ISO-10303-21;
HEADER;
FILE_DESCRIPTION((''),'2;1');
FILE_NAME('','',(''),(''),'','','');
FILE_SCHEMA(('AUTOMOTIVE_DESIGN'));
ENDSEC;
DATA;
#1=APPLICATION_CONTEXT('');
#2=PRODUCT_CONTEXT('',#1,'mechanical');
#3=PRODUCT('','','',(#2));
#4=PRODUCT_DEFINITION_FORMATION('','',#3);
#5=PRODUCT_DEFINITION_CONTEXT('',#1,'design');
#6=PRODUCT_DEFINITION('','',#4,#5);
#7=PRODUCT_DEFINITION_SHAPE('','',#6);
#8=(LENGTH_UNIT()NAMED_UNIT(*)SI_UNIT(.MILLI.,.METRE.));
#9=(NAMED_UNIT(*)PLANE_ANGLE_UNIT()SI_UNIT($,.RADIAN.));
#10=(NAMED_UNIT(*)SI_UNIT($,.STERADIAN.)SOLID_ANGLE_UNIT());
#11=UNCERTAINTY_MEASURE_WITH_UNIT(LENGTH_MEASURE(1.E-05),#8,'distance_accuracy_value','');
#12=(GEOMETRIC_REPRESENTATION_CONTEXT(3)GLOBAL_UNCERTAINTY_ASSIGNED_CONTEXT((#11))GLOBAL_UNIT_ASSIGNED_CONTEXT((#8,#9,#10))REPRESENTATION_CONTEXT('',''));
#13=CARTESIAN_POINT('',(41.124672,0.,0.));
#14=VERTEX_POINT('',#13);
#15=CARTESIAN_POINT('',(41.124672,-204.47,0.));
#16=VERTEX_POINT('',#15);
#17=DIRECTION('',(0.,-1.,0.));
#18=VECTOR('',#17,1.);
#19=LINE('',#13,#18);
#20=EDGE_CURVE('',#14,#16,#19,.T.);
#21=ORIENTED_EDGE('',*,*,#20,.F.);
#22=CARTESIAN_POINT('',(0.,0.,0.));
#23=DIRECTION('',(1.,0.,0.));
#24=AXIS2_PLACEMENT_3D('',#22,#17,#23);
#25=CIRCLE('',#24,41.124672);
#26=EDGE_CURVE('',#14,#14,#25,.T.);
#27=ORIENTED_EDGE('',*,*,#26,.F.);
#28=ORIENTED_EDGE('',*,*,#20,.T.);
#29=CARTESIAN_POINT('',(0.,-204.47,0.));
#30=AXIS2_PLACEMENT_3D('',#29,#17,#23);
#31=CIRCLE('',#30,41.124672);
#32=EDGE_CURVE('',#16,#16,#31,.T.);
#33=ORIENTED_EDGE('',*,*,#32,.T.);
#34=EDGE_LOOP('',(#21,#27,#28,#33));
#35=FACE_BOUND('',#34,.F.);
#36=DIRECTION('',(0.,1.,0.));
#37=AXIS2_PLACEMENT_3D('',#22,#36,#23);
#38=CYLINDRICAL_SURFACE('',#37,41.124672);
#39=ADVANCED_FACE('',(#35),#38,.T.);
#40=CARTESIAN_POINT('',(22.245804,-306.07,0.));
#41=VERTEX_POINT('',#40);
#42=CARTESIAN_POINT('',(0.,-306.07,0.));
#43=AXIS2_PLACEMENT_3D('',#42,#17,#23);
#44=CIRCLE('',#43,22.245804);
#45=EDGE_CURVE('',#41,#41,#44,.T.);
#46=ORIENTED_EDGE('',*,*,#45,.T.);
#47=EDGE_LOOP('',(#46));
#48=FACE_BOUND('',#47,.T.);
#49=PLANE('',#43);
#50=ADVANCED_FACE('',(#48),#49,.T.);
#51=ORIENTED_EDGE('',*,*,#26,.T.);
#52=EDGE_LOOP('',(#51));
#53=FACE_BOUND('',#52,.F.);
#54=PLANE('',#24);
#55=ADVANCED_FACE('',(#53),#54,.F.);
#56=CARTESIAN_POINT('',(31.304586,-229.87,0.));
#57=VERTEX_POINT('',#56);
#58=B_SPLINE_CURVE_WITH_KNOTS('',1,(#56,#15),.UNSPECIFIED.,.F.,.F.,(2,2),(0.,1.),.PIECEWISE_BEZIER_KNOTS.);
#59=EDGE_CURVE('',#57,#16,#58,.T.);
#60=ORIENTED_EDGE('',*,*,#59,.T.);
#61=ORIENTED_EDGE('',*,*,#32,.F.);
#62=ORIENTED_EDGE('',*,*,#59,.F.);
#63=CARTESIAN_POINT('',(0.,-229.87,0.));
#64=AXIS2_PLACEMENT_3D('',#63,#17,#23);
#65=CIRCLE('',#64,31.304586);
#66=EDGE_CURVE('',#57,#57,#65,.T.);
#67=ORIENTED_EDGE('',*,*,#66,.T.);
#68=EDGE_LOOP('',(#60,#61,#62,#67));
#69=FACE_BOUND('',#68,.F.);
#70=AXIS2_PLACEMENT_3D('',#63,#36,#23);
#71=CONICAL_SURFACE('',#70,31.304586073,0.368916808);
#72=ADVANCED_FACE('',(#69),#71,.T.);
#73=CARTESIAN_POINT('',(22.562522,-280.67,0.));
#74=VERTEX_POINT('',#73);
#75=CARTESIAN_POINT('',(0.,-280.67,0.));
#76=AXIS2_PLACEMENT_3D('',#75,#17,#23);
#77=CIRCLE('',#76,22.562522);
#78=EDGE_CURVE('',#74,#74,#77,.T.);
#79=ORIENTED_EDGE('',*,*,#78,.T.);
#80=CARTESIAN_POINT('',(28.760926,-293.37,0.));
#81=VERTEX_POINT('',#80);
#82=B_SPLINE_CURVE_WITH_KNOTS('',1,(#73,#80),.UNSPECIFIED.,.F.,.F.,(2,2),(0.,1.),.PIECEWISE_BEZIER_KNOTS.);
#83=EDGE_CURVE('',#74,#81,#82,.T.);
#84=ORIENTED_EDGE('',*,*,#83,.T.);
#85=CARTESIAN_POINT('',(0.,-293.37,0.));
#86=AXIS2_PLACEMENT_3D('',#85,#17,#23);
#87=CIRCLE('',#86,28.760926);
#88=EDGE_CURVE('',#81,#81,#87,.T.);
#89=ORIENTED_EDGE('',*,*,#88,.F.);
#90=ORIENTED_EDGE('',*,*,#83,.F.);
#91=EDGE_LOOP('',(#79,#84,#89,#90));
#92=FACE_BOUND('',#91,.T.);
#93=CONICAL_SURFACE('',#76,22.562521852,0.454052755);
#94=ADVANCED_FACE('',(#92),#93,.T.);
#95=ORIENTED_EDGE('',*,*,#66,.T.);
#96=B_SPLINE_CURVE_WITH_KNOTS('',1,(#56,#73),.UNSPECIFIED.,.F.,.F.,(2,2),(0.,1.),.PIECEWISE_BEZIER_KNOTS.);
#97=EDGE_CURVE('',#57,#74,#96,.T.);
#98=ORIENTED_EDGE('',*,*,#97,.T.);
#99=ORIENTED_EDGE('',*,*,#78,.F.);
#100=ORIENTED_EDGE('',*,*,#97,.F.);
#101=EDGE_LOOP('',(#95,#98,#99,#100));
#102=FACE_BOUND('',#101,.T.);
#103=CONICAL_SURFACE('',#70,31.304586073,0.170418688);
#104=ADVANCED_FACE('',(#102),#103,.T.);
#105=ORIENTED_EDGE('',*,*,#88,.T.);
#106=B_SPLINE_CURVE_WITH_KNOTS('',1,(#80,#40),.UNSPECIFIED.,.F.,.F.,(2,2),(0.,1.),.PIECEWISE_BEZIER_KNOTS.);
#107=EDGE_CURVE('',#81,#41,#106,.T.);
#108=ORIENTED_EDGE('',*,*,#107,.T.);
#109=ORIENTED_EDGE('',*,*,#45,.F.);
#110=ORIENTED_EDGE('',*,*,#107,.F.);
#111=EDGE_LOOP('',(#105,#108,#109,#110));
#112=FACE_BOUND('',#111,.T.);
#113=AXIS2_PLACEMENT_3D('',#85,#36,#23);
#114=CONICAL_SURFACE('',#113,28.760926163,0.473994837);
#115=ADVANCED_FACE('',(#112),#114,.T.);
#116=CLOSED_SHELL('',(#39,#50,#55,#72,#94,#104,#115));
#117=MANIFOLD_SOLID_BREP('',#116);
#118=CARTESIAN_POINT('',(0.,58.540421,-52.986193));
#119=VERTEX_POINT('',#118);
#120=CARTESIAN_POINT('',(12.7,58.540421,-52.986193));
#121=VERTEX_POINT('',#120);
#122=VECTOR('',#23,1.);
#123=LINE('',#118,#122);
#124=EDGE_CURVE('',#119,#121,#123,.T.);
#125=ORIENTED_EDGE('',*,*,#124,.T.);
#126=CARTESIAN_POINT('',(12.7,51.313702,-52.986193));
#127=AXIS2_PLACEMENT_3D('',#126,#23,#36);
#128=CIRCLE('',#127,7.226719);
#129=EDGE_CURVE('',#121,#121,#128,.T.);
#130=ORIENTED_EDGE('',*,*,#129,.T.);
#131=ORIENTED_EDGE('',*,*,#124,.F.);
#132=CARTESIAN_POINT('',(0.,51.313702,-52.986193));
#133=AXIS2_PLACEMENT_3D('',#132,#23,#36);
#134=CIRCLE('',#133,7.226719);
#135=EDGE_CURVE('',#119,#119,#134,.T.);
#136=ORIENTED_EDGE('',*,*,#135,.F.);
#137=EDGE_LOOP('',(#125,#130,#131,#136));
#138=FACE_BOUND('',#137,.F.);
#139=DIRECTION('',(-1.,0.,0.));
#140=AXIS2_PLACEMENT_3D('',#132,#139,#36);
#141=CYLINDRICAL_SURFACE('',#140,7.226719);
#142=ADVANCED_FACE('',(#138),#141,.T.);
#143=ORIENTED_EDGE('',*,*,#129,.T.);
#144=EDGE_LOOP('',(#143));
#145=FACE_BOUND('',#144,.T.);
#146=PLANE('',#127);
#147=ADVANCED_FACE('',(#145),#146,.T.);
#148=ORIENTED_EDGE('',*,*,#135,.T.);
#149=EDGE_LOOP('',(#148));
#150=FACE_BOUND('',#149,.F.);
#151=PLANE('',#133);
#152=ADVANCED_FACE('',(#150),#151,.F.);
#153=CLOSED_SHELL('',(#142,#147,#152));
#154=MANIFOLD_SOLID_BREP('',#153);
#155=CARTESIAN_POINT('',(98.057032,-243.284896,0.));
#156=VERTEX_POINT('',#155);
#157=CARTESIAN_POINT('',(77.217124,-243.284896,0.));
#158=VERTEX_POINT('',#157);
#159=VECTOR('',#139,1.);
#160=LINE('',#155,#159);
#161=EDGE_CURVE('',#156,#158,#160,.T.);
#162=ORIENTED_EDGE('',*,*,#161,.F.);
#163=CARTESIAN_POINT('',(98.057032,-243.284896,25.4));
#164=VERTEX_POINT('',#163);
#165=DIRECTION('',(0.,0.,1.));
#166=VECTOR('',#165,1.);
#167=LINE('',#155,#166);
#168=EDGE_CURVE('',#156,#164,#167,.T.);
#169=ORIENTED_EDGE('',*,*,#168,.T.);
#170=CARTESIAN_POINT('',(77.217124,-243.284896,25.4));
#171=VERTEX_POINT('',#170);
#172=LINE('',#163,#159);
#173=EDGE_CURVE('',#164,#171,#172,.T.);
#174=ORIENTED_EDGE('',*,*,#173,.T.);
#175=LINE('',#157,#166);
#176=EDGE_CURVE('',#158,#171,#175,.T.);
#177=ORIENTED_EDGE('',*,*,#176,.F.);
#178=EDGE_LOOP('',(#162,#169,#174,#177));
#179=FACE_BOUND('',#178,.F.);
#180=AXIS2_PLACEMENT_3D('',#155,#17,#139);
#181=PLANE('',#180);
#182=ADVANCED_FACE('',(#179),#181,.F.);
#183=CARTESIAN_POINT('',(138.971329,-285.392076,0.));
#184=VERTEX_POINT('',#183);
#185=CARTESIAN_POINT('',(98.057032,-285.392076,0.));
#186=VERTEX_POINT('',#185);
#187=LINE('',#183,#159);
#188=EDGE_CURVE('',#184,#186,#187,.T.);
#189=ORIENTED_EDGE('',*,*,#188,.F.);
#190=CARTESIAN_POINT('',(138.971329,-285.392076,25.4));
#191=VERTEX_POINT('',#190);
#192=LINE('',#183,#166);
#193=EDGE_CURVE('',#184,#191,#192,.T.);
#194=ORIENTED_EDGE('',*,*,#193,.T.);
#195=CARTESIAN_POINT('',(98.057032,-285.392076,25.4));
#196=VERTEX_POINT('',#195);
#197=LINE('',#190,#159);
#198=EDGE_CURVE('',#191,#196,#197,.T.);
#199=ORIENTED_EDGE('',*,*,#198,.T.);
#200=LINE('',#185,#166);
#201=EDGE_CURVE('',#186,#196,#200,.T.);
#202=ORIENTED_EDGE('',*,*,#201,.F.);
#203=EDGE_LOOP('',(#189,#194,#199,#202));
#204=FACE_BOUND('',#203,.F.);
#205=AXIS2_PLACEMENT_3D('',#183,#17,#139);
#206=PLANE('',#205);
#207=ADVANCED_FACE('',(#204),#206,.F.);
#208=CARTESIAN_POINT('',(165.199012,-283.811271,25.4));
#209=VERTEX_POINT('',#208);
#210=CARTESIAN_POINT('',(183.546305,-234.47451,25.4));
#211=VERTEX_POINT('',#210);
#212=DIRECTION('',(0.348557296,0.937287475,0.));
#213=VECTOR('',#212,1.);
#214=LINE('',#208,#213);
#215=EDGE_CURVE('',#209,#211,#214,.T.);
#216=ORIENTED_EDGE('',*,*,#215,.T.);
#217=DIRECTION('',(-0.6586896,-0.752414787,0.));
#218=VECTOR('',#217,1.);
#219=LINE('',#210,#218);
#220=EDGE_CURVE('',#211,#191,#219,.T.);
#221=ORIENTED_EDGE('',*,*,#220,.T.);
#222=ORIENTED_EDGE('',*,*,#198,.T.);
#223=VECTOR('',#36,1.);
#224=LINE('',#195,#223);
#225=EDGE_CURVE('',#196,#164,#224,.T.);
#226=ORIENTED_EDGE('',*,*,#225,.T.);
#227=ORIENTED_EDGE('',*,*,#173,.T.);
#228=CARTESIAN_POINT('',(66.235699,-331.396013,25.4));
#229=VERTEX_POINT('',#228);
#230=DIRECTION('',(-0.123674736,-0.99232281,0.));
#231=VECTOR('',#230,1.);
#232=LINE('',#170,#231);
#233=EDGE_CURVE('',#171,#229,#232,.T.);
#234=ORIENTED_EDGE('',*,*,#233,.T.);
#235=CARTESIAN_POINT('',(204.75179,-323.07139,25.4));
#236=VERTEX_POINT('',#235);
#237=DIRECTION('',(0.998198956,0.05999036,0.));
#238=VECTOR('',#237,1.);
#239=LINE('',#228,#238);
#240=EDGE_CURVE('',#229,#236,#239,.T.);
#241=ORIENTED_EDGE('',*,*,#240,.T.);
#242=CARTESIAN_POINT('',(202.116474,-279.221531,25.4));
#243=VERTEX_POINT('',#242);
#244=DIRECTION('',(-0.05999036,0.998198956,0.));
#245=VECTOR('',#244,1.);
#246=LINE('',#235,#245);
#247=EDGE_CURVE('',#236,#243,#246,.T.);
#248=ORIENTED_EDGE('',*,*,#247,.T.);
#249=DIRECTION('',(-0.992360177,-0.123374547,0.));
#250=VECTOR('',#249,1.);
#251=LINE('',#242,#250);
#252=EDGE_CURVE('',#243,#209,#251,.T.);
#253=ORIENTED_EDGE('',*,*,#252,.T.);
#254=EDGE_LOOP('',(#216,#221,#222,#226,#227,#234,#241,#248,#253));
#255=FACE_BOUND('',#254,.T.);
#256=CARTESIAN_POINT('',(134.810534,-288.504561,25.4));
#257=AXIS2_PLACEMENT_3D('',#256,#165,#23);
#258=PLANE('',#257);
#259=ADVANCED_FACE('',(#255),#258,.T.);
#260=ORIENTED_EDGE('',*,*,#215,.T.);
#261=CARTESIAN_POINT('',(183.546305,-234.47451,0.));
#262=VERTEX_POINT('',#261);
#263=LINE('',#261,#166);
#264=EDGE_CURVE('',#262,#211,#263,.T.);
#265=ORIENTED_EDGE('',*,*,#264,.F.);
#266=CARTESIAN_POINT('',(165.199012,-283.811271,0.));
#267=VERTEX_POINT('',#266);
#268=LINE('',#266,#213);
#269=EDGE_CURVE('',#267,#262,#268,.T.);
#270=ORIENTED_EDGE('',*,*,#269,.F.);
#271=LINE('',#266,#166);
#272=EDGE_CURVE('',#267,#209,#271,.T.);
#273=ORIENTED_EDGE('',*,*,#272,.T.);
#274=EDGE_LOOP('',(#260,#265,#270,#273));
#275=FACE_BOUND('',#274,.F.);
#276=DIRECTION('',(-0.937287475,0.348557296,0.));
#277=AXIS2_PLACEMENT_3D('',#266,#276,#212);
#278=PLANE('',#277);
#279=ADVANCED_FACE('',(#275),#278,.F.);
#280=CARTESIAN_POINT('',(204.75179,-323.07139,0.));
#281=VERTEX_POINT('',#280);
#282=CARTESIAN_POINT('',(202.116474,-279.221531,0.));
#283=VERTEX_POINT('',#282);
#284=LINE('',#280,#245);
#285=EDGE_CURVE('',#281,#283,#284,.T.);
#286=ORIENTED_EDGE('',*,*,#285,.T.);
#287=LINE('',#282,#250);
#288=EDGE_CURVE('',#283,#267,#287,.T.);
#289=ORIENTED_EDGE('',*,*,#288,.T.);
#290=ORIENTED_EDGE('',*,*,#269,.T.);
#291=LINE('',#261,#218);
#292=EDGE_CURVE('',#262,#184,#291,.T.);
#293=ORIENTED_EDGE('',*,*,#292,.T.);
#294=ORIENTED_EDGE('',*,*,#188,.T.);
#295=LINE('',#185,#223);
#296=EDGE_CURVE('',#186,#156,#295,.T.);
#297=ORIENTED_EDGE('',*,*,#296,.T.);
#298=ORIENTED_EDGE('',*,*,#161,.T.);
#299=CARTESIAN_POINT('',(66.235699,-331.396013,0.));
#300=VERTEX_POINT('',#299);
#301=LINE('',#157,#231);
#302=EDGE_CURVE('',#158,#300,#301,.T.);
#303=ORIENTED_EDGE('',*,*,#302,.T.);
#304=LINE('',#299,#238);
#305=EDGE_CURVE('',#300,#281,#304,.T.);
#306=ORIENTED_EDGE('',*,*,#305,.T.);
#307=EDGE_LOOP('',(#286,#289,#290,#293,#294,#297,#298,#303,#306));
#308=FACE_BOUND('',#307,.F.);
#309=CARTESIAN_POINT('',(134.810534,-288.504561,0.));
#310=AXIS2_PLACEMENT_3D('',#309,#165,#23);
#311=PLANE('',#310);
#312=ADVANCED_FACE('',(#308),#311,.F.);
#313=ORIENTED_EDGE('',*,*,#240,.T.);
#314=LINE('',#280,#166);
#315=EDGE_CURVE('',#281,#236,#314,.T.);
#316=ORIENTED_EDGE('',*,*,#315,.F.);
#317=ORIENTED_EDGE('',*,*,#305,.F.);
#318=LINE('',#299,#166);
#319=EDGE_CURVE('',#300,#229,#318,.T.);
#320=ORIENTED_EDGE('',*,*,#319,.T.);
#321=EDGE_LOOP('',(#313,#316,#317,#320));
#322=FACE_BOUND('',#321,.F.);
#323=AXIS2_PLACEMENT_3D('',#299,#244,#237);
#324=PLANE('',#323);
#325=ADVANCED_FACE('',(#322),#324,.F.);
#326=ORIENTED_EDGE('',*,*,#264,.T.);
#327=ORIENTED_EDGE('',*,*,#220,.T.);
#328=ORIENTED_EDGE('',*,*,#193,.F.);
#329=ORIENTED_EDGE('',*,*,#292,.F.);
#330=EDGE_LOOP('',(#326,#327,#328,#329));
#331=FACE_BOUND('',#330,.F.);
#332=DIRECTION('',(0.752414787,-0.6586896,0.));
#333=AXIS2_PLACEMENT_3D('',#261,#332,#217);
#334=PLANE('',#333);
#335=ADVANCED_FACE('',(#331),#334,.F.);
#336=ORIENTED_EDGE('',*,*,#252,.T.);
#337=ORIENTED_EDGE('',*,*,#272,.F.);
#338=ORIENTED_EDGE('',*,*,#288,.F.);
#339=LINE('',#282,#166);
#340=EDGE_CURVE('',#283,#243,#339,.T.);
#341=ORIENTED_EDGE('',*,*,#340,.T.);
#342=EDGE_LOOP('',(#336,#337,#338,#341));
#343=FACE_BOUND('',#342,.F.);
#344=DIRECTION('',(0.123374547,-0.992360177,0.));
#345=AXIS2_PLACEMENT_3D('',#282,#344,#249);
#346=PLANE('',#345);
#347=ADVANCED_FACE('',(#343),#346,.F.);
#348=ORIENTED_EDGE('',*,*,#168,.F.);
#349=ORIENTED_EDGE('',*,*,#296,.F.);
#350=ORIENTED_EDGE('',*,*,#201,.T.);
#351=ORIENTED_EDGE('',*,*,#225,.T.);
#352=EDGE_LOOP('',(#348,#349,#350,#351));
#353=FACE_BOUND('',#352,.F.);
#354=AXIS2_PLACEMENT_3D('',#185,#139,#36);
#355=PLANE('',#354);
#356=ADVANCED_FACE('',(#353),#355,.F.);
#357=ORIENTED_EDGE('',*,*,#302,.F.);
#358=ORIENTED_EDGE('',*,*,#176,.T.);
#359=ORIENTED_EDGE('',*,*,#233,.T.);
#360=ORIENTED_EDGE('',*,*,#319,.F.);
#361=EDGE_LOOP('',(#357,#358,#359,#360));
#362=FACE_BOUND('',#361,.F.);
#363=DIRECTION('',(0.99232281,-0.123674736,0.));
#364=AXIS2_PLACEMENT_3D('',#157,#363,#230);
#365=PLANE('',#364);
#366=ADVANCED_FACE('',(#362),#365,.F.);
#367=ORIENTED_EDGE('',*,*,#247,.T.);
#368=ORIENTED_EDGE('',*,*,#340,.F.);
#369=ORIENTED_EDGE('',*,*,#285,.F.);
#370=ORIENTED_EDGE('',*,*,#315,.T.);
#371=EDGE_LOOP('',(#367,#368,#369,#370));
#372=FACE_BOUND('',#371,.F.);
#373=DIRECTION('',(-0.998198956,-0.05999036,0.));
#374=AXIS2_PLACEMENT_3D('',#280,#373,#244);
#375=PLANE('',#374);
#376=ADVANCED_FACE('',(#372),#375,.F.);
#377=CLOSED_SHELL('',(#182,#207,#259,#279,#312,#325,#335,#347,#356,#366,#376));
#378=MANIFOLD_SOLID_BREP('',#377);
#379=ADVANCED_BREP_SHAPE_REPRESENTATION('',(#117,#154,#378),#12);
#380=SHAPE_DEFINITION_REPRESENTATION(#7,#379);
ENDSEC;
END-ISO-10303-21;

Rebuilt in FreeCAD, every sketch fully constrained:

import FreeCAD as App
import Part
import Sketcher
Q = App.Units.Quantity


def add_polygon(sketch, points):
    """Adds a closed chain of lines whose ends are joined by coincident constraints."""
    first, n = sketch.GeometryCount, len(points)
    for a, b in zip(points, points[1:] + points[:1]):
        sketch.addGeometry(Part.LineSegment(App.Vector(*a, 0), App.Vector(*b, 0)), False)
    for i in range(n):
        sketch.addConstraint(Sketcher.Constraint("Coincident", first + i, 2, first + (i + 1) % n, 1))

doc = App.newDocument("Part")
params = doc.addObject("Spreadsheet::Sheet", "Params")
for row, (alias, value) in enumerate([
    ("pad1_length", "8.05 in"),
    ("pad2_length", "1 in"),
    ("pad3_length", "0.5 in"),
], start=1):
    params.set(f"A{row}", alias)
    params.set(f"B{row}", "=" + value)
    params.setAlias(f"B{row}", alias)

body = doc.addObject("PartDesign::Body", "Body")

# Sketch on XZ plane
sketch1 = body.newObject("Sketcher::SketchObject", "Sketch")
sketch1.AttachmentSupport = (doc.getObject("XZ_Plane"), [""])
sketch1.MapMode = "FlatFace"
sketch1.addGeometry(Part.Circle(App.Vector(0, 0, 0), App.Vector(0, 0, 1), 41.124672), False)
sketch1.addConstraint([
    Sketcher.Constraint("Coincident", 0, 3, -1, 1),
    Sketcher.Constraint("Diameter", 0, 82.249343),
])
pad1 = body.newObject("PartDesign::Pad", "Pad")
pad1.Profile = sketch1
pad1.setExpression("Length", "Params.pad1_length")

# Sketch on XZ plane
sketch2 = body.newObject("Sketcher::SketchObject", "Sketch001")
sketch2.AttachmentSupport = (doc.getObject("XZ_Plane"), [""])
sketch2.MapMode = "FlatFace"
sketch2.AttachmentOffset = App.Placement(App.Vector(0, 0, 9.05 * 25.4), App.Rotation())
sketch2.addGeometry(Part.Circle(App.Vector(0, 0, 0), App.Vector(0, 0, 1), 31.304586), False)
sketch2.addConstraint([
    Sketcher.Constraint("Coincident", 0, 3, -1, 1),
    Sketcher.Constraint("Diameter", 0, 62.609172),
])

# Sketch on XZ plane
sketch3 = body.newObject("Sketcher::SketchObject", "Sketch002")
sketch3.AttachmentSupport = (doc.getObject("XZ_Plane"), [""])
sketch3.MapMode = "FlatFace"
sketch3.AttachmentOffset = App.Placement(App.Vector(0, 0, 8.05 * 25.4), App.Rotation())
sketch3.addGeometry(Part.Circle(App.Vector(0, 0, 0), App.Vector(0, 0, 1), 41.124672), False)
sketch3.addConstraint([
    Sketcher.Constraint("Coincident", 0, 3, -1, 1),
    Sketcher.Constraint("Diameter", 0, 82.249343),
])

additiveloft = body.newObject("PartDesign::AdditiveLoft", "AdditiveLoft")
additiveloft.Profile = sketch2
additiveloft.Sections = [sketch3]

# Sketch on XZ plane
sketch4 = body.newObject("Sketcher::SketchObject", "Sketch003")
sketch4.AttachmentSupport = (doc.getObject("XZ_Plane"), [""])
sketch4.MapMode = "FlatFace"
sketch4.AttachmentOffset = App.Placement(App.Vector(0, 0, 9.05 * 25.4), App.Rotation())
sketch4.addGeometry(Part.Circle(App.Vector(0, 0, 0), App.Vector(0, 0, 1), 31.304586), False)
sketch4.addConstraint([
    Sketcher.Constraint("Coincident", 0, 3, -1, 1),
    Sketcher.Constraint("Diameter", 0, 62.609172),
])

# Sketch on XZ plane
sketch5 = body.newObject("Sketcher::SketchObject", "Sketch004")
sketch5.AttachmentSupport = (doc.getObject("XZ_Plane"), [""])
sketch5.MapMode = "FlatFace"
sketch5.AttachmentOffset = App.Placement(App.Vector(0, 0, 11.05 * 25.4), App.Rotation())
sketch5.addGeometry(Part.Circle(App.Vector(0, 0, 0), App.Vector(0, 0, 1), 22.562522), False)
sketch5.addConstraint([
    Sketcher.Constraint("Coincident", 0, 3, -1, 1),
    Sketcher.Constraint("Diameter", 0, 45.125044),
])

additiveloft2 = body.newObject("PartDesign::AdditiveLoft", "AdditiveLoft001")
additiveloft2.Profile = sketch4
additiveloft2.Sections = [sketch5]

# Sketch on XZ plane
sketch6 = body.newObject("Sketcher::SketchObject", "Sketch005")
sketch6.AttachmentSupport = (doc.getObject("XZ_Plane"), [""])
sketch6.MapMode = "FlatFace"
sketch6.AttachmentOffset = App.Placement(App.Vector(0, 0, 11.05 * 25.4), App.Rotation())
sketch6.addGeometry(Part.Circle(App.Vector(0, 0, 0), App.Vector(0, 0, 1), 22.562522), False)
sketch6.addConstraint([
    Sketcher.Constraint("Coincident", 0, 3, -1, 1),
    Sketcher.Constraint("Diameter", 0, 45.125044),
])

# Sketch on XZ plane
sketch7 = body.newObject("Sketcher::SketchObject", "Sketch006")
sketch7.AttachmentSupport = (doc.getObject("XZ_Plane"), [""])
sketch7.MapMode = "FlatFace"
sketch7.AttachmentOffset = App.Placement(App.Vector(0, 0, 11.55 * 25.4), App.Rotation())
sketch7.addGeometry(Part.Circle(App.Vector(0, 0, 0), App.Vector(0, 0, 1), 28.760926), False)
sketch7.addConstraint([
    Sketcher.Constraint("Coincident", 0, 3, -1, 1),
    Sketcher.Constraint("Diameter", 0, 57.521852),
])

additiveloft3 = body.newObject("PartDesign::AdditiveLoft", "AdditiveLoft002")
additiveloft3.Profile = sketch6
additiveloft3.Sections = [sketch7]

# Sketch on XZ plane
sketch8 = body.newObject("Sketcher::SketchObject", "Sketch007")
sketch8.AttachmentSupport = (doc.getObject("XZ_Plane"), [""])
sketch8.MapMode = "FlatFace"
sketch8.AttachmentOffset = App.Placement(App.Vector(0, 0, 11.55 * 25.4), App.Rotation())
sketch8.addGeometry(Part.Circle(App.Vector(0, 0, 0), App.Vector(0, 0, 1), 28.760926), False)
sketch8.addConstraint([
    Sketcher.Constraint("Coincident", 0, 3, -1, 1),
    Sketcher.Constraint("Diameter", 0, 57.521852),
])

# Sketch on XZ plane
sketch9 = body.newObject("Sketcher::SketchObject", "Sketch008")
sketch9.AttachmentSupport = (doc.getObject("XZ_Plane"), [""])
sketch9.MapMode = "FlatFace"
sketch9.AttachmentOffset = App.Placement(App.Vector(0, 0, 12.05 * 25.4), App.Rotation())
sketch9.addGeometry(Part.Circle(App.Vector(0, 0, 0), App.Vector(0, 0, 1), 22.245804), False)
sketch9.addConstraint([
    Sketcher.Constraint("Coincident", 0, 3, -1, 1),
    Sketcher.Constraint("Diameter", 0, 44.491607),
])

additiveloft4 = body.newObject("PartDesign::AdditiveLoft", "AdditiveLoft003")
additiveloft4.Profile = sketch8
additiveloft4.Sections = [sketch9]
body2 = doc.addObject("PartDesign::Body", "Body001")

# Sketch on XY plane
sketch10 = body2.newObject("Sketcher::SketchObject", "Sketch009")
sketch10.AttachmentSupport = (doc.getObject("XY_Plane001"), [""])
sketch10.MapMode = "FlatFace"
add_polygon(sketch10, [(202.116474, -279.221531), (165.199012, -283.811271), (183.546305, -234.47451), (138.971329, -285.392076), (98.057032, -285.392076), (98.057032, -243.284896), (77.217124, -243.284896), (66.235699, -331.396013), (204.75179, -323.07139)])  # lines 0-8
sketch10.addConstraint([
    Sketcher.Constraint("Horizontal", 3),
    Sketcher.Constraint("Vertical", 4),
    Sketcher.Constraint("Horizontal", 5),
    Sketcher.Constraint("Perpendicular", 7, 8),
    Sketcher.Constraint("Angle", 2, Q("-131.200011 deg")),
    Sketcher.Constraint("DistanceY", 4, 1, 4, 2, 42.10718),
    Sketcher.Constraint("DistanceX", -1, 1, 6, 2, 66.235699),
    Sketcher.Constraint("Distance", 1, 52.637811),
    Sketcher.Constraint("DistanceX", 3, 2, 3, 1, 40.914297),
    Sketcher.Constraint("DistanceX", 5, 2, 5, 1, 20.839907),
    Sketcher.Constraint("DistanceX", -1, 1, 0, 2, 165.199012),
    Sketcher.Constraint("DistanceY", 0, 2, -1, 1, 283.811271),
    Sketcher.Constraint("DistanceY", 1, 2, -1, 1, 234.47451),
    Sketcher.Constraint("DistanceX", -1, 1, 2, 2, 138.971329),
    Sketcher.Constraint("DistanceX", -1, 1, 7, 2, 204.75179),
    Sketcher.Constraint("DistanceY", 7, 2, -1, 1, 323.07139),
    Sketcher.Constraint("DistanceY", 8, 2, -1, 1, 279.221531),
    Sketcher.Constraint("DistanceX", 1, 2, 8, 2, 18.57017),
])
pad2 = body2.newObject("PartDesign::Pad", "Pad001")
pad2.Profile = sketch10
pad2.setExpression("Length", "Params.pad2_length")
body3 = doc.addObject("PartDesign::Body", "Body002")

# Sketch on YZ plane
sketch11 = body3.newObject("Sketcher::SketchObject", "Sketch010")
sketch11.AttachmentSupport = (doc.getObject("YZ_Plane002"), [""])
sketch11.MapMode = "FlatFace"
sketch11.addGeometry(Part.Circle(App.Vector(51.313702, -52.986193, 0), App.Vector(0, 0, 1), 7.226719), False)
sketch11.addConstraint([
    Sketcher.Constraint("Diameter", 0, 14.453437),
    Sketcher.Constraint("DistanceX", -1, 1, 0, 3, 51.313702),
    Sketcher.Constraint("DistanceY", 0, 3, -1, 1, 52.986193),
])
pad3 = body3.newObject("PartDesign::Pad", "Pad002")
pad3.Profile = sketch11
pad3.setExpression("Length", "Params.pad3_length")

doc.recompute()
